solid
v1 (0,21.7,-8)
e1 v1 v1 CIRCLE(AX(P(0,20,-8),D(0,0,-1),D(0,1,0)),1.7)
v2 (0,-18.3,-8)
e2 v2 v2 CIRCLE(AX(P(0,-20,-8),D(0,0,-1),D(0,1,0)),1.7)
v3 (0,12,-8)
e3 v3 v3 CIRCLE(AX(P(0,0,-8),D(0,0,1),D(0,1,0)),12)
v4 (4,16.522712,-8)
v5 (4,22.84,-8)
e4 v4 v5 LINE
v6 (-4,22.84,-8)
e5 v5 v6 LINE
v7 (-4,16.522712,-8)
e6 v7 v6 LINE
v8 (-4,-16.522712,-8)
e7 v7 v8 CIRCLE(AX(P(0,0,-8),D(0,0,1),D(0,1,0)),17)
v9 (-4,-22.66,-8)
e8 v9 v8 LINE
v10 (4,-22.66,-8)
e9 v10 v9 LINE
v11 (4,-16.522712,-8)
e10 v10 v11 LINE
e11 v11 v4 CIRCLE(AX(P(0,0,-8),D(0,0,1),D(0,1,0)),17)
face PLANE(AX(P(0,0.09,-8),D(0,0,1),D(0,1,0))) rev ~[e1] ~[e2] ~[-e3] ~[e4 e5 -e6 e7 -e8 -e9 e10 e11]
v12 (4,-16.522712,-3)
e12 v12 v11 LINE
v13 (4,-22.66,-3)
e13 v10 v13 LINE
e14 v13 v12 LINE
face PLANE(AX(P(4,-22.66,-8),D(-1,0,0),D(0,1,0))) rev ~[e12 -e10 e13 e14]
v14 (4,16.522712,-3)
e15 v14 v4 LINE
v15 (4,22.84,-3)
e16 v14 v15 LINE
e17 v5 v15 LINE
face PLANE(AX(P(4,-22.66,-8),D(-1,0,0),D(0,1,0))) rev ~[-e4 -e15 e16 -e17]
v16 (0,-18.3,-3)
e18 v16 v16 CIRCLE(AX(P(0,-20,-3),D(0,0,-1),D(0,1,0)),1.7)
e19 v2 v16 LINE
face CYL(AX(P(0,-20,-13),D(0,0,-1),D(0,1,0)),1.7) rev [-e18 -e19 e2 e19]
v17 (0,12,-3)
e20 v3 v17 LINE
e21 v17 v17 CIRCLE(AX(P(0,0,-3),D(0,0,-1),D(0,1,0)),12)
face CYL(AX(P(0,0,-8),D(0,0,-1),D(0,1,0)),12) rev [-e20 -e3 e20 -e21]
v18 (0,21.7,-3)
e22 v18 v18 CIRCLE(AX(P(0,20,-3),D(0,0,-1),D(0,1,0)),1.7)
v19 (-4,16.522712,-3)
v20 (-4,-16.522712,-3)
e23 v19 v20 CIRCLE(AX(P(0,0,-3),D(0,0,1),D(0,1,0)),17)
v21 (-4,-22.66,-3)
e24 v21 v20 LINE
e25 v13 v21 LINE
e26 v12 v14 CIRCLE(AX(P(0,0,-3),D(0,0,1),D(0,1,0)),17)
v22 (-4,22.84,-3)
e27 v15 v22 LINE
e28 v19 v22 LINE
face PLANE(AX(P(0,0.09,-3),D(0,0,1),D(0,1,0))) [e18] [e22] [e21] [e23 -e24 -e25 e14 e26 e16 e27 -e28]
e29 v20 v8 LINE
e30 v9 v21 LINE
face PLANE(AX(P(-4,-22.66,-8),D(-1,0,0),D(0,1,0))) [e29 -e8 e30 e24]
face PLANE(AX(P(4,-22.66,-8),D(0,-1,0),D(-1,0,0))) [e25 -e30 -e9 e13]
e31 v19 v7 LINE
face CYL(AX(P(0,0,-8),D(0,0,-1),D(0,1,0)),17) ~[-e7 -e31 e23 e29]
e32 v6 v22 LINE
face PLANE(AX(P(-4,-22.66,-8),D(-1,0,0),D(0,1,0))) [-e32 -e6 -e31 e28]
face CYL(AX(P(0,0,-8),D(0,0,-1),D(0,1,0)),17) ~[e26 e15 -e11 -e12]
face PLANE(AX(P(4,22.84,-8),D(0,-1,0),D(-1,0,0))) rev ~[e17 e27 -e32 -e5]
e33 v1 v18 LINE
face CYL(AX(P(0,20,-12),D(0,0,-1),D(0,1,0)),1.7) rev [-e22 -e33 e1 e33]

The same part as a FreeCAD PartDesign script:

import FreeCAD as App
import Part
import Sketcher
from FreeCAD import Vector

doc = App.newDocument("Part")
params = doc.addObject("Spreadsheet::Sheet", "Params")
for row, (alias, value) in enumerate([
    ("sketch1_diameter", "4 mm"),
    ("pad1_length", "10 mm"),
    ("sketch2_diameter", "3.4 mm"),
    ("pad2_length", "14 mm"),
    ("sketch3_diameter", "24 mm"),
    ("pad3_length", "33 mm"),
    ("sketch4_diameter", "3.4 mm"),
    ("pad4_length", "14 mm"),
    ("sketch5_height", "8 mm"),
    ("sketch5_width", "45.5 mm"),
    ("pad5_length", "5 mm"),
    ("sketch6_diameter", "34 mm"),
    ("pad6_length", "5 mm"),
], start=1):
    params.set(f"A{row}", alias)
    params.set(f"B{row}", "=" + value)
    params.setAlias(f"B{row}", alias)

body = doc.addObject("PartDesign::Body", "Body")

# Sketch on XY plane
sketch1 = body.newObject("Sketcher::SketchObject", "Sketch")
sketch1.AttachmentSupport = (doc.getObject("XY_Plane"), [""])
sketch1.MapMode = "FlatFace"
sketch1.addGeometry(Part.Circle(Vector(0, 57, 0), Vector(0, 0, 1), 2), False)
sketch1.addConstraint([
    Sketcher.Constraint("PointOnObject", 0, 3, -2),
    Sketcher.Constraint("Diameter", 0, 4.0),
    Sketcher.Constraint("DistanceY", -1, 1, 0, 3, 57.0),
])
sketch1.setExpression("Constraints[1]", "Params.sketch1_diameter")
pad1 = body.newObject("PartDesign::Pad", "Pad")
pad1.Profile = sketch1
pad1.setExpression("Length", "Params.pad1_length")
body2 = doc.addObject("PartDesign::Body", "Body001")

# Sketch on XY plane
sketch2 = body2.newObject("Sketcher::SketchObject", "Sketch001")
sketch2.AttachmentSupport = (doc.getObject("XY_Plane001"), [""])
sketch2.MapMode = "FlatFace"
sketch2.AttachmentOffset = App.Placement(Vector(0, 0, -15), App.Rotation())
sketch2.addGeometry(Part.Circle(Vector(53.7, 148, 0), Vector(0, 0, 1), 1.7), False)
sketch2.addConstraint([
    Sketcher.Constraint("Diameter", 0, 3.4),
    Sketcher.Constraint("DistanceY", -1, 1, 0, 3, 148.0),
    Sketcher.Constraint("DistanceX", -1, 1, 0, 3, 53.66),
])
sketch2.setExpression("Constraints[0]", "Params.sketch2_diameter")
pad2 = body2.newObject("PartDesign::Pad", "Pad001")
pad2.Profile = sketch2
pad2.setExpression("Length", "Params.pad2_length")
body3 = doc.addObject("PartDesign::Body", "Body002")

# Sketch on XY plane
sketch3 = body3.newObject("Sketcher::SketchObject", "Sketch002")
sketch3.AttachmentSupport = (doc.getObject("XY_Plane002"), [""])
sketch3.MapMode = "FlatFace"
sketch3.AttachmentOffset = App.Placement(Vector(0, 0, -10), App.Rotation())
sketch3.addGeometry(Part.Circle(Vector(74, 148, 0), Vector(0, 0, 1), 12), False)
sketch3.addConstraint([
    Sketcher.Constraint("Diameter", 0, 24.0),
    Sketcher.Constraint("DistanceY", -1, 1, 0, 3, 148.0),
    Sketcher.Constraint("DistanceX", -1, 1, 0, 3, 73.66),
])
sketch3.setExpression("Constraints[0]", "Params.sketch3_diameter")
pad3 = body3.newObject("PartDesign::Pad", "Pad002")
pad3.Profile = sketch3
pad3.setExpression("Length", "Params.pad3_length")
body4 = doc.addObject("PartDesign::Body", "Body003")
body4.AllowCompound = True

# Sketch on XY plane
sketch4 = body4.newObject("Sketcher::SketchObject", "Sketch003")
sketch4.AttachmentSupport = (doc.getObject("XY_Plane003"), [""])
sketch4.MapMode = "FlatFace"
sketch4.AttachmentOffset = App.Placement(Vector(0, 0, -14), App.Rotation())
sketch4.addGeometry(Part.Circle(Vector(93.7, 148, 0), Vector(0, 0, 1), 1.7), False)
sketch4.addConstraint([
    Sketcher.Constraint("Diameter", 0, 3.4),
    Sketcher.Constraint("DistanceY", -1, 1, 0, 3, 148.0),
    Sketcher.Constraint("DistanceX", -1, 1, 0, 3, 93.66),
])
sketch4.setExpression("Constraints[0]", "Params.sketch4_diameter")
pad4 = body4.newObject("PartDesign::Pad", "Pad003")
pad4.Profile = sketch4
pad4.setExpression("Length", "Params.pad4_length")
doc.recompute()

boolean = body4.newObject("PartDesign::Boolean", "Boolean")
boolean.Type = "Fuse"
boolean.addObjects([body2])
doc.recompute()

boolean2 = body4.newObject("PartDesign::Boolean", "Boolean001")
boolean2.Type = "Fuse"
boolean2.addObjects([body3])
body5 = doc.addObject("PartDesign::Body", "Body004")

# Sketch on XY plane
sketch5 = body5.newObject("Sketcher::SketchObject", "Sketch004")
sketch5.AttachmentSupport = (doc.getObject("XY_Plane004"), [""])
sketch5.MapMode = "FlatFace"
sketch5.AttachmentOffset = App.Placement(Vector(0, 0, -10), App.Rotation())
sketch5.addGeometry([
    Part.LineSegment(Vector(51, 152, 0), Vector(51, 144, 0)),
    Part.LineSegment(Vector(51, 144, 0), Vector(96, 144, 0)),
    Part.LineSegment(Vector(96, 144, 0), Vector(96, 152, 0)),
    Part.LineSegment(Vector(96, 152, 0), Vector(51, 152, 0)),
], False)
sketch5.addConstraint([
    Sketcher.Constraint("Coincident", 0, 2, 1, 1),
    Sketcher.Constraint("Coincident", 1, 2, 2, 1),
    Sketcher.Constraint("Coincident", 2, 2, 3, 1),
    Sketcher.Constraint("Coincident", 3, 2, 0, 1),
    Sketcher.Constraint("Vertical", 0),
    Sketcher.Constraint("Horizontal", 1),
    Sketcher.Constraint("Vertical", 2),
    Sketcher.Constraint("Horizontal", 3),
    Sketcher.Constraint("DistanceY", 0, 2, 0, 1, 8.0),
    Sketcher.Constraint("DistanceX", 1, 1, 1, 2, 45.5),
    Sketcher.Constraint("DistanceX", -1, 1, 0, 2, 51.0),
    Sketcher.Constraint("DistanceY", -1, 1, 0, 2, 144.0),
])
sketch5.setExpression("Constraints[8]", "Params.sketch5_height")
sketch5.setExpression("Constraints[9]", "Params.sketch5_width")
pad5 = body5.newObject("PartDesign::Pad", "Pad004")
pad5.Profile = sketch5
pad5.setExpression("Length", "Params.pad5_length")
body6 = doc.addObject("PartDesign::Body", "Body005")

# Sketch on XY plane
sketch6 = body6.newObject("Sketcher::SketchObject", "Sketch005")
sketch6.AttachmentSupport = (doc.getObject("XY_Plane005"), [""])
sketch6.MapMode = "FlatFace"
sketch6.AttachmentOffset = App.Placement(Vector(0, 0, -10), App.Rotation())
sketch6.addGeometry(Part.Circle(Vector(74, 148, 0), Vector(0, 0, 1), 17), False)
sketch6.addConstraint([
    Sketcher.Constraint("Diameter", 0, 34.0),
    Sketcher.Constraint("DistanceY", -1, 1, 0, 3, 148.0),
    Sketcher.Constraint("DistanceX", -1, 1, 0, 3, 73.66),
])
sketch6.setExpression("Constraints[0]", "Params.sketch6_diameter")
pad6 = body6.newObject("PartDesign::Pad", "Pad005")
pad6.Profile = sketch6
pad6.setExpression("Length", "Params.pad6_length")
doc.recompute()

boolean3 = body6.newObject("PartDesign::Boolean", "Boolean002")
boolean3.Type = "Fuse"
boolean3.addObjects([body5])
doc.recompute()

boolean4 = body6.newObject("PartDesign::Boolean", "Boolean003")
boolean4.Type = "Cut"
boolean4.addObjects([body4])
body7 = doc.addObject("PartDesign::Body", "Body006")
doc.recompute()

body6.Placement = App.Placement(Vector(-73.66, -148, 2), App.Rotation(Vector(0, 0, 1), 0))
boolean5 = body7.newObject("PartDesign::Boolean", "Boolean004")
boolean5.Type = "Fuse"
boolean5.addObjects([body6])
doc.recompute()

boolean6 = body7.newObject("PartDesign::Boolean", "Boolean005")
boolean6.Type = "Cut"
boolean6.addObjects([body])
body8 = doc.addObject("PartDesign::Body", "Body007")
doc.recompute()

body7.Placement = App.Placement(Vector(0, 0, 0), App.Rotation(Vector(0, 0, 1), 90))
boolean7 = body8.newObject("PartDesign::Boolean", "Boolean006")
boolean7.Type = "Fuse"
boolean7.addObjects([body7])

doc.recompute()
